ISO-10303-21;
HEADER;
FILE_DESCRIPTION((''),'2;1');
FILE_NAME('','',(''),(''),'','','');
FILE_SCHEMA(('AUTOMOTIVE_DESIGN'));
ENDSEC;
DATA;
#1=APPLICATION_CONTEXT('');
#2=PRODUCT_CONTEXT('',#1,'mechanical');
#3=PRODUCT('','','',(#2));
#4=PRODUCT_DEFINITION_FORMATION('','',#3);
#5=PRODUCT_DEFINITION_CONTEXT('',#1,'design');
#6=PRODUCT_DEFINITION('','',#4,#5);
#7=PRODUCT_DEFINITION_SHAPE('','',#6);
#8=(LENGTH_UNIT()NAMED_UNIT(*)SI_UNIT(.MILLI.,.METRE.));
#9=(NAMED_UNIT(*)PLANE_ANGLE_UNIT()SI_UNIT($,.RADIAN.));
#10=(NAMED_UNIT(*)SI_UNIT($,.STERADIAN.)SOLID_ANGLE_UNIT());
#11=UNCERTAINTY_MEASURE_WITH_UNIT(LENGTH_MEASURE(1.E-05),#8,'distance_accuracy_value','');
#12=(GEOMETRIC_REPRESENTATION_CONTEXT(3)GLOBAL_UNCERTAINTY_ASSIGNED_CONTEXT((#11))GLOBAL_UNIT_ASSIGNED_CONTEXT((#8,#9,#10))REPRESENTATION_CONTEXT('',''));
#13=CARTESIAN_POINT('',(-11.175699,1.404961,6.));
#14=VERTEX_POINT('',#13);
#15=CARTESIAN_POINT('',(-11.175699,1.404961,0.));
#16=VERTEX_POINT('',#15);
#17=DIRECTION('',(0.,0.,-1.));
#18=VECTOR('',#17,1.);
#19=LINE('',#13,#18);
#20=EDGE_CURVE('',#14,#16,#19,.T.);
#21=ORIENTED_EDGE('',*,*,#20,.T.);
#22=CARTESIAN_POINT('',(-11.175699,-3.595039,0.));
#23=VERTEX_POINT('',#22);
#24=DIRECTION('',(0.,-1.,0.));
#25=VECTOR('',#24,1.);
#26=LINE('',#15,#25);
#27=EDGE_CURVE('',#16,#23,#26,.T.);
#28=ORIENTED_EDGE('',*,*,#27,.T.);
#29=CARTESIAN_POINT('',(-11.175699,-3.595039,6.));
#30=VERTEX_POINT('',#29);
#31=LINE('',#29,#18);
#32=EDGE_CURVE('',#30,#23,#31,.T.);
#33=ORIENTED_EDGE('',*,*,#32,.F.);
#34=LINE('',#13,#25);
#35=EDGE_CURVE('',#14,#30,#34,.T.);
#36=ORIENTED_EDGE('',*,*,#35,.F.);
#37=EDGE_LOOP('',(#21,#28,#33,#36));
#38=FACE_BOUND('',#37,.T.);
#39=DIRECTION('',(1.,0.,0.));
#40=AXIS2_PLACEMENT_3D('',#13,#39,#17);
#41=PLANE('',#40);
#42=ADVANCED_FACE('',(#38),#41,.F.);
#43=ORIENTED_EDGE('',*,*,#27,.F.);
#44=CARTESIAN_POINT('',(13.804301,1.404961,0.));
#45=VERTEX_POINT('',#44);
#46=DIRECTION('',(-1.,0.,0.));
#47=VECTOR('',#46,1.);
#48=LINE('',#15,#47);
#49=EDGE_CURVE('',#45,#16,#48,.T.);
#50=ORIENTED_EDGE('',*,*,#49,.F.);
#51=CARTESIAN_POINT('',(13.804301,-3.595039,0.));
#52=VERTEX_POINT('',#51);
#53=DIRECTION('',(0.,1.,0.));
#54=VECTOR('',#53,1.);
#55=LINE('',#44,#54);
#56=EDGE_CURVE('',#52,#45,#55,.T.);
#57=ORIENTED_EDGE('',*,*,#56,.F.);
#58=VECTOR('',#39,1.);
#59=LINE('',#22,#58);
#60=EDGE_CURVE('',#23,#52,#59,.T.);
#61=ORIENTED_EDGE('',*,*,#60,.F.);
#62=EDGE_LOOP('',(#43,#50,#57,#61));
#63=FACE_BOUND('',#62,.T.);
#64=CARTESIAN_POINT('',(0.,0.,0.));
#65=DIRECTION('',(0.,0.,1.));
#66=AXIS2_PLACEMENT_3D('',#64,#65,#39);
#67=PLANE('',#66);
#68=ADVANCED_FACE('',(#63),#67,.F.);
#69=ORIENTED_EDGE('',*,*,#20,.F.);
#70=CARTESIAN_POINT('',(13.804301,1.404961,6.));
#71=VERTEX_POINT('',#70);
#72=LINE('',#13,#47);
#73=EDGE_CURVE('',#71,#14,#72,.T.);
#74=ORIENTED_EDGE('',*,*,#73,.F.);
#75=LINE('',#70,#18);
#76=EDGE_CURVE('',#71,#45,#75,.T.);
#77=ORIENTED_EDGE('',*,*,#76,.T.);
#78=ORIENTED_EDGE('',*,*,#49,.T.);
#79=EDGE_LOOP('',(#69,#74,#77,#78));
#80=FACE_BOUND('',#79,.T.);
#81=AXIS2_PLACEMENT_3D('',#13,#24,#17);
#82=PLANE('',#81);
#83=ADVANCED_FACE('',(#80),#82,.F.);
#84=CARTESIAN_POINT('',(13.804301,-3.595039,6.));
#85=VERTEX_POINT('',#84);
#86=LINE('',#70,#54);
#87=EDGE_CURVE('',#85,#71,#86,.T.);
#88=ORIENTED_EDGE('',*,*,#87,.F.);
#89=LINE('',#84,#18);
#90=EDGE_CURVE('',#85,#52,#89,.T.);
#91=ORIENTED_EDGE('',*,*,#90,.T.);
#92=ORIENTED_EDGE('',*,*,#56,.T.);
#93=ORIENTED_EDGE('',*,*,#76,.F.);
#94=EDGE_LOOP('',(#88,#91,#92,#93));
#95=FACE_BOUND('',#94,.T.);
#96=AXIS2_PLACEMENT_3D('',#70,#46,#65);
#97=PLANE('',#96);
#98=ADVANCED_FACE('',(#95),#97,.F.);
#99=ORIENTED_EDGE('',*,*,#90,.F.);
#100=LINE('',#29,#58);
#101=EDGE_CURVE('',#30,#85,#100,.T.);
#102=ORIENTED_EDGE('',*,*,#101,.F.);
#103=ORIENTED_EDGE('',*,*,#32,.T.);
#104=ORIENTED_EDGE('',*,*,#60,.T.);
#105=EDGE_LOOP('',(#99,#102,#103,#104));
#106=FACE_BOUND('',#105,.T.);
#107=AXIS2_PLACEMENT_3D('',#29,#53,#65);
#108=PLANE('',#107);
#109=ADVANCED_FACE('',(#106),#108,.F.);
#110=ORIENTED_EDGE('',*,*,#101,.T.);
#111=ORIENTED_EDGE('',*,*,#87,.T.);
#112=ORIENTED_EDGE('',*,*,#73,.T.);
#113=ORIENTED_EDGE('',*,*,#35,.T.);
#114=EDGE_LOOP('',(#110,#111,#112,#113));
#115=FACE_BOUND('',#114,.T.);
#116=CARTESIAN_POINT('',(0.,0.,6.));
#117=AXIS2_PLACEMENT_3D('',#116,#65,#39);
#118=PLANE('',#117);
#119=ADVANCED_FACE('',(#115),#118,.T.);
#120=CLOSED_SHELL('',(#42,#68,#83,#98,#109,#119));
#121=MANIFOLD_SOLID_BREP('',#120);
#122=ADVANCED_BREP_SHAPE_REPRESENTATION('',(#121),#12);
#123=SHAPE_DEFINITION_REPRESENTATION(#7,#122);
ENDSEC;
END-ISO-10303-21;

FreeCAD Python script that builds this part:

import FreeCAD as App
import Part
import Sketcher

V = App.Vector
Q = App.Units.Quantity

doc = App.newDocument("Part")
params = doc.addObject("Spreadsheet::Sheet", "Params")
for row, (alias, value) in enumerate([
    ("sketch1_height", "5 mm"),
    ("sketch1_width", "24.98 mm"),
    ("pad1_length", "6 mm"),
], start=1):
    params.set(f"A{row}", alias)
    params.set(f"B{row}", "=" + value)
    params.setAlias(f"B{row}", alias)

body = doc.addObject("PartDesign::Body", "Body")

sketch1 = body.newObject("Sketcher::SketchObject", "Sketch")
sketch1.AttachmentSupport = (doc.getObject("XY_Plane"), [""])
sketch1.MapMode = "FlatFace"
sketch1.addGeometry(Part.LineSegment(V(-11, 1, 0), V(-11, -4, 0)), False)
sketch1.addGeometry(Part.LineSegment(V(-11, -4, 0), V(14, -4, 0)), False)
sketch1.addGeometry(Part.LineSegment(V(14, -4, 0), V(14, 1, 0)), False)
sketch1.addGeometry(Part.LineSegment(V(14, 1, 0), V(-11, 1, 0)), False)
sketch1.addConstraint(Sketcher.Constraint("Coincident", 0, 2, 1, 1))
sketch1.addConstraint(Sketcher.Constraint("Coincident", 1, 2, 2, 1))
sketch1.addConstraint(Sketcher.Constraint("Coincident", 2, 2, 3, 1))
sketch1.addConstraint(Sketcher.Constraint("Coincident", 3, 2, 0, 1))
sketch1.addConstraint(Sketcher.Constraint("Vertical", 0))
sketch1.addConstraint(Sketcher.Constraint("Horizontal", 1))
sketch1.addConstraint(Sketcher.Constraint("Vertical", 2))
sketch1.addConstraint(Sketcher.Constraint("Horizontal", 3))
sketch1.addConstraint(Sketcher.Constraint("DistanceY", 0, 2, 0, 1, Q("5 mm")))
sketch1.addConstraint(Sketcher.Constraint("DistanceX", 1, 1, 1, 2, Q("24.98 mm")))
sketch1.addConstraint(Sketcher.Constraint("DistanceX", 0, 2, -1, 1, Q("11.175699 mm")))
sketch1.addConstraint(Sketcher.Constraint("DistanceY", 0, 2, -1, 1, Q("3.595039 mm")))
sketch1.setExpression("Constraints[8]", "Params.sketch1_height")
sketch1.setExpression("Constraints[9]", "Params.sketch1_width")
pad1 = body.newObject("PartDesign::Pad", "Pad")
pad1.Profile = sketch1
pad1.setExpression("Length", "Params.pad1_length")

doc.recompute()
